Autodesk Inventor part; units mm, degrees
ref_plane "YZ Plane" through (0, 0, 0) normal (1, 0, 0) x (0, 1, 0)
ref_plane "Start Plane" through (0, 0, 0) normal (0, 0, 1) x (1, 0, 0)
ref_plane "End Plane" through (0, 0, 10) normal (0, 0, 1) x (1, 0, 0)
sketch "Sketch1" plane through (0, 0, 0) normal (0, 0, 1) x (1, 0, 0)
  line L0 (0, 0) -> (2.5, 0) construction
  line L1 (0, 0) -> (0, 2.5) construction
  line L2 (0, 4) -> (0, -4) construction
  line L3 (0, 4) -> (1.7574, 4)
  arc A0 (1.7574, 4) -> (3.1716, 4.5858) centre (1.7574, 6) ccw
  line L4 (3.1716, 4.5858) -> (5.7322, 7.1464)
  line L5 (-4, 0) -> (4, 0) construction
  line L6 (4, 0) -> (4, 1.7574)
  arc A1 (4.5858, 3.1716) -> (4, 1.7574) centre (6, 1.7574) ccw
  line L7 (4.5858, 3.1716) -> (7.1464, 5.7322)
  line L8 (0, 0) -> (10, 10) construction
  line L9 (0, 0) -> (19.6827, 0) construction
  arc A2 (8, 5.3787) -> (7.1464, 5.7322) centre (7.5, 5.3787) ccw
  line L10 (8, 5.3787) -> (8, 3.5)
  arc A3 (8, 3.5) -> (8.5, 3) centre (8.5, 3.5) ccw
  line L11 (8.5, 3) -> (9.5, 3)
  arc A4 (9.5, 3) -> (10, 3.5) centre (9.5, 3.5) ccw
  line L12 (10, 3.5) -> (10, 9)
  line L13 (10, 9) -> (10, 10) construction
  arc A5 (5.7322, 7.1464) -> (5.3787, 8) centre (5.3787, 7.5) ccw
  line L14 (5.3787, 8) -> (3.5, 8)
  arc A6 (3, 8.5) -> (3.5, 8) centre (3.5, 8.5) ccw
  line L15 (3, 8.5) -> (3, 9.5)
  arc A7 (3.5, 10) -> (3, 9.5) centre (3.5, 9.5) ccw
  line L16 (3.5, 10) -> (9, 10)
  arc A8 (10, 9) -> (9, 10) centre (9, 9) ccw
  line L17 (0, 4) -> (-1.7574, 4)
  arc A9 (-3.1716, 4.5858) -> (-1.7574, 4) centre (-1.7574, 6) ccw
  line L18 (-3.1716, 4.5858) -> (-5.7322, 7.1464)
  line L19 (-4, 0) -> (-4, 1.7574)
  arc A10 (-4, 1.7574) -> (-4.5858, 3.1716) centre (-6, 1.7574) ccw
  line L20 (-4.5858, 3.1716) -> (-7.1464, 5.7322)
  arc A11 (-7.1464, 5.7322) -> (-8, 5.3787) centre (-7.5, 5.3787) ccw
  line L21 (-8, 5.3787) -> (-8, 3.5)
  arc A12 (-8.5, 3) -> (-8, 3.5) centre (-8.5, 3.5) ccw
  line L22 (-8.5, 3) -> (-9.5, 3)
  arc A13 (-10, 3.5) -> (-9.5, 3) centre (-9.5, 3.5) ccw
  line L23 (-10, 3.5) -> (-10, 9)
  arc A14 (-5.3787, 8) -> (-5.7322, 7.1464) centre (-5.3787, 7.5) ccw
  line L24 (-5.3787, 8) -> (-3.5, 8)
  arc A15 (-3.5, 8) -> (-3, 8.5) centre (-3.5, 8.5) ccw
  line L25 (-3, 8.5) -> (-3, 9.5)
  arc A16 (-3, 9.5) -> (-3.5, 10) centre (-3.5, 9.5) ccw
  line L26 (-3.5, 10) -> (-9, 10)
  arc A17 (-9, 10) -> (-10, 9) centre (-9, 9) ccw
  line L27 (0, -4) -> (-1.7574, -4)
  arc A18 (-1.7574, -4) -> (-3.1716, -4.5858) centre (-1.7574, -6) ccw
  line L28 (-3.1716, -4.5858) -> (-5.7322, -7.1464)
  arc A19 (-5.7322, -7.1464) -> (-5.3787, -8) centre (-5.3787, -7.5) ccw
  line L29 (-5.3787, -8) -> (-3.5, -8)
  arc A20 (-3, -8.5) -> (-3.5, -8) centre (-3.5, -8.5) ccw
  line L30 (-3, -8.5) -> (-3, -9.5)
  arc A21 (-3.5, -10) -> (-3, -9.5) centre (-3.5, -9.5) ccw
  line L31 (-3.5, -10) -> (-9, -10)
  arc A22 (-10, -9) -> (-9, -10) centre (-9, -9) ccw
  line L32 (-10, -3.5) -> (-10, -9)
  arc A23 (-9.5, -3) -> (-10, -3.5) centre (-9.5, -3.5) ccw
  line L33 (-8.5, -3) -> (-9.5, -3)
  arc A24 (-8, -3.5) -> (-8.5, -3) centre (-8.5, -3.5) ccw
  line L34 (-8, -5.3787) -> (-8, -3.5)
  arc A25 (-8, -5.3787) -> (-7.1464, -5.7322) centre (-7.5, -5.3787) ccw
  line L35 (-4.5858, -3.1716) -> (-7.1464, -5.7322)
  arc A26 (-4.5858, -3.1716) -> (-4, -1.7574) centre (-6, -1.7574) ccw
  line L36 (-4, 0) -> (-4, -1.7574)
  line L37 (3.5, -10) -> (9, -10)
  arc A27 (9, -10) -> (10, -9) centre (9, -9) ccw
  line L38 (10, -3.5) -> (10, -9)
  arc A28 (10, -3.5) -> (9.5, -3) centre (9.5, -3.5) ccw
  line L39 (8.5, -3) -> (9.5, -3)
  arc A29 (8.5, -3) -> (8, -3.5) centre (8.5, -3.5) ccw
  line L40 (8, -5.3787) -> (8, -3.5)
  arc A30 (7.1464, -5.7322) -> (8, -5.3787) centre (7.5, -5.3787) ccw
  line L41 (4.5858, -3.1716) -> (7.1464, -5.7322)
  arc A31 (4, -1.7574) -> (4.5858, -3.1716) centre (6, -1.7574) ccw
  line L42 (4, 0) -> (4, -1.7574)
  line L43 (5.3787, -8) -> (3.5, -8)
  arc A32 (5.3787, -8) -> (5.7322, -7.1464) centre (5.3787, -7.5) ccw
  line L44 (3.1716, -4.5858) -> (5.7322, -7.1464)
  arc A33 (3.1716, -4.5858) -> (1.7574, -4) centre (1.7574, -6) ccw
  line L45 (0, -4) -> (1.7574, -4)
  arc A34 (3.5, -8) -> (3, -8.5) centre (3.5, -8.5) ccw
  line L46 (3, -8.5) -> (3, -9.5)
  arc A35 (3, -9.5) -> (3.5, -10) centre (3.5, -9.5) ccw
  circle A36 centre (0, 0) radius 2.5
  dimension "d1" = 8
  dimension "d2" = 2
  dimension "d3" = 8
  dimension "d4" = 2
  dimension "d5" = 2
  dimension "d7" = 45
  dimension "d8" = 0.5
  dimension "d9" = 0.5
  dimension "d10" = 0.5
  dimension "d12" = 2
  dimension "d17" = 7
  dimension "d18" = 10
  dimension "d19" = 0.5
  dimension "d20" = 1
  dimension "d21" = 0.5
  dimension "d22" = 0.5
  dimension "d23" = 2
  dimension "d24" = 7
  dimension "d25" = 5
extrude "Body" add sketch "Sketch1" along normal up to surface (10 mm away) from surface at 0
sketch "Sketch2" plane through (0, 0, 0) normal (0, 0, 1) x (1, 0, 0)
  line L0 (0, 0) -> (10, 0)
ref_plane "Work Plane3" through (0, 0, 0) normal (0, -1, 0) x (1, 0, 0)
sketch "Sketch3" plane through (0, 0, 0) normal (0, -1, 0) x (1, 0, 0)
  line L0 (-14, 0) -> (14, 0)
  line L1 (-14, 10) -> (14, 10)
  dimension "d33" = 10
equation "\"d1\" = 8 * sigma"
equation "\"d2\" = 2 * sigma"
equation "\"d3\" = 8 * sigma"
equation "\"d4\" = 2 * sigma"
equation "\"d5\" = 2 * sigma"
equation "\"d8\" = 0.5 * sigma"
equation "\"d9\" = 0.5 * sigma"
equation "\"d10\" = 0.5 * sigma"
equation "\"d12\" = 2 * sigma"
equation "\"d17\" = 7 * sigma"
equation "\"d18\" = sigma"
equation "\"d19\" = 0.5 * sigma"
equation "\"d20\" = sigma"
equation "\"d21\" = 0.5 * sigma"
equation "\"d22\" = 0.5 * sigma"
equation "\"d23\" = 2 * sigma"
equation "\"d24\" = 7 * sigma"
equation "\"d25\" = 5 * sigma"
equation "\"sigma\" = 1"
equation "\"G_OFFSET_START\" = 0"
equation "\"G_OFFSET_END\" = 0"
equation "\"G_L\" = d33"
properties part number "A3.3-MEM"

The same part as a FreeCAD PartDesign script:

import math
import FreeCAD as App
import Part
import Sketcher
from FreeCAD import Vector

doc = App.newDocument("Part")
params = doc.addObject("Spreadsheet::Sheet", "Params")
for row, (alias, value) in enumerate([
    ("sketch1_diameter", "5 mm"),
    ("sketch1_radius", "2 mm"),
    ("sketch1_radius2", "1 mm"),
    ("sketch1_radius3", "0.5 mm"),
    ("sketch1_width", "1 mm"),
    ("pad1_length", "10 mm"),
], start=1):
    params.set(f"A{row}", alias)
    params.set(f"B{row}", "=" + value)
    params.setAlias(f"B{row}", alias)

body = doc.addObject("PartDesign::Body", "Body")

sketch1 = body.newObject("Sketcher::SketchObject", "Sketch")
sketch1.AttachmentSupport = (doc.getObject("XY_Plane"), [""])
sketch1.MapMode = "FlatFace"
sketch1.addGeometry([
    Part.LineSegment(Vector(1.76, 4, 0), Vector(-1.76, 4, 0)),
    Part.ArcOfCircle(Part.Circle(Vector(-1.76, 6, 0), Vector(0, 0, 1), 2), math.radians(-135), math.radians(-90)),
    Part.LineSegment(Vector(-3.17, 4.59, 0), Vector(-5.73, 7.15, 0)),
    Part.ArcOfCircle(Part.Circle(Vector(-5.38, 7.5, 0), Vector(0, 0, 1), 0.5), math.radians(90), math.radians(225)),
    Part.LineSegment(Vector(-5.38, 8, 0), Vector(-3.5, 8, 0)),
    Part.ArcOfCircle(Part.Circle(Vector(-3.5, 8.5, 0), Vector(0, 0, 1), 0.5), math.radians(-90), math.radians(0)),
    Part.LineSegment(Vector(-3, 8.5, 0), Vector(-3, 9.5, 0)),
    Part.ArcOfCircle(Part.Circle(Vector(-3.5, 9.5, 0), Vector(0, 0, 1), 0.5), math.radians(0), math.radians(90)),
    Part.LineSegment(Vector(-3.5, 10, 0), Vector(-9, 10, 0)),
    Part.ArcOfCircle(Part.Circle(Vector(-9, 9, 0), Vector(0, 0, 1), 1), math.radians(90), math.radians(180)),
    Part.LineSegment(Vector(-10, 9, 0), Vector(-10, 3.5, 0)),
    Part.ArcOfCircle(Part.Circle(Vector(-9.5, 3.5, 0), Vector(0, 0, 1), 0.5), math.radians(180), math.radians(270)),
    Part.LineSegment(Vector(-9.5, 3, 0), Vector(-8.5, 3, 0)),
    Part.ArcOfCircle(Part.Circle(Vector(-8.5, 3.5, 0), Vector(0, 0, 1), 0.5), math.radians(-90), math.radians(0)),
    Part.LineSegment(Vector(-8, 3.5, 0), Vector(-8, 5.38, 0)),
    Part.ArcOfCircle(Part.Circle(Vector(-7.5, 5.38, 0), Vector(0, 0, 1), 0.5), math.radians(45), math.radians(180)),
    Part.LineSegment(Vector(-7.15, 5.73, 0), Vector(-4.59, 3.17, 0)),
    Part.ArcOfCircle(Part.Circle(Vector(-6, 1.76, 0), Vector(0, 0, 1), 2), math.radians(0), math.radians(45)),
    Part.LineSegment(Vector(-4, 1.76, 0), Vector(-4, -1.76, 0)),
    Part.ArcOfCircle(Part.Circle(Vector(-6, -1.76, 0), Vector(0, 0, 1), 2), math.radians(-45), math.radians(0)),
    Part.LineSegment(Vector(-4.59, -3.17, 0), Vector(-7.15, -5.73, 0)),
    Part.ArcOfCircle(Part.Circle(Vector(-7.5, -5.38, 0), Vector(0, 0, 1), 0.5), math.radians(180), math.radians(315)),
    Part.LineSegment(Vector(-8, -5.38, 0), Vector(-8, -3.5, 0)),
    Part.ArcOfCircle(Part.Circle(Vector(-8.5, -3.5, 0), Vector(0, 0, 1), 0.5), math.radians(0), math.radians(90)),
    Part.LineSegment(Vector(-8.5, -3, 0), Vector(-9.5, -3, 0)),
    Part.ArcOfCircle(Part.Circle(Vector(-9.5, -3.5, 0), Vector(0, 0, 1), 0.5), math.radians(90), math.radians(180)),
    Part.LineSegment(Vector(-10, -3.5, 0), Vector(-10, -9, 0)),
    Part.ArcOfCircle(Part.Circle(Vector(-9, -9, 0), Vector(0, 0, 1), 1), math.radians(180), math.radians(270)),
    Part.LineSegment(Vector(-9, -10, 0), Vector(-3.5, -10, 0)),
    Part.ArcOfCircle(Part.Circle(Vector(-3.5, -9.5, 0), Vector(0, 0, 1), 0.5), math.radians(-90), math.radians(0)),
    Part.LineSegment(Vector(-3, -9.5, 0), Vector(-3, -8.5, 0)),
    Part.ArcOfCircle(Part.Circle(Vector(-3.5, -8.5, 0), Vector(0, 0, 1), 0.5), math.radians(0), math.radians(90)),
    Part.LineSegment(Vector(-3.5, -8, 0), Vector(-5.38, -8, 0)),
    Part.ArcOfCircle(Part.Circle(Vector(-5.38, -7.5, 0), Vector(0, 0, 1), 0.5), math.radians(135), math.radians(270)),
    Part.LineSegment(Vector(-5.73, -7.15, 0), Vector(-3.17, -4.59, 0)),
    Part.ArcOfCircle(Part.Circle(Vector(-1.76, -6, 0), Vector(0, 0, 1), 2), math.radians(90), math.radians(135)),
    Part.LineSegment(Vector(-1.76, -4, 0), Vector(1.76, -4, 0)),
    Part.ArcOfCircle(Part.Circle(Vector(1.76, -6, 0), Vector(0, 0, 1), 2), math.radians(45), math.radians(90)),
    Part.LineSegment(Vector(3.17, -4.59, 0), Vector(5.73, -7.15, 0)),
    Part.ArcOfCircle(Part.Circle(Vector(5.38, -7.5, 0), Vector(0, 0, 1), 0.5), math.radians(-90), math.radians(45)),
    Part.LineSegment(Vector(5.38, -8, 0), Vector(3.5, -8, 0)),
    Part.ArcOfCircle(Part.Circle(Vector(3.5, -8.5, 0), Vector(0, 0, 1), 0.5), math.radians(90), math.radians(180)),
    Part.LineSegment(Vector(3, -8.5, 0), Vector(3, -9.5, 0)),
    Part.ArcOfCircle(Part.Circle(Vector(3.5, -9.5, 0), Vector(0, 0, 1), 0.5), math.radians(180), math.radians(270)),
    Part.LineSegment(Vector(3.5, -10, 0), Vector(9, -10, 0)),
    Part.ArcOfCircle(Part.Circle(Vector(9, -9, 0), Vector(0, 0, 1), 1), math.radians(-90), math.radians(0)),
    Part.LineSegment(Vector(10, -9, 0), Vector(10, -3.5, 0)),
    Part.ArcOfCircle(Part.Circle(Vector(9.5, -3.5, 0), Vector(0, 0, 1), 0.5), math.radians(0), math.radians(90)),
    Part.LineSegment(Vector(9.5, -3, 0), Vector(8.5, -3, 0)),
    Part.ArcOfCircle(Part.Circle(Vector(8.5, -3.5, 0), Vector(0, 0, 1), 0.5), math.radians(90), math.radians(180)),
    Part.LineSegment(Vector(8, -3.5, 0), Vector(8, -5.38, 0)),
    Part.ArcOfCircle(Part.Circle(Vector(7.5, -5.38, 0), Vector(0, 0, 1), 0.5), math.radians(-135), math.radians(0)),
    Part.LineSegment(Vector(7.15, -5.73, 0), Vector(4.59, -3.17, 0)),
    Part.ArcOfCircle(Part.Circle(Vector(6, -1.76, 0), Vector(0, 0, 1), 2), math.radians(180), math.radians(225)),
    Part.LineSegment(Vector(4, -1.76, 0), Vector(4, 1.76, 0)),
    Part.ArcOfCircle(Part.Circle(Vector(6, 1.76, 0), Vector(0, 0, 1), 2), math.radians(135), math.radians(180)),
    Part.LineSegment(Vector(4.59, 3.17, 0), Vector(7.15, 5.73, 0)),
    Part.ArcOfCircle(Part.Circle(Vector(7.5, 5.38, 0), Vector(0, 0, 1), 0.5), math.radians(0), math.radians(135)),
    Part.LineSegment(Vector(8, 5.38, 0), Vector(8, 3.5, 0)),
    Part.ArcOfCircle(Part.Circle(Vector(8.5, 3.5, 0), Vector(0, 0, 1), 0.5), math.radians(180), math.radians(270)),
    Part.LineSegment(Vector(8.5, 3, 0), Vector(9.5, 3, 0)),
    Part.ArcOfCircle(Part.Circle(Vector(9.5, 3.5, 0), Vector(0, 0, 1), 0.5), math.radians(-90), math.radians(0)),
    Part.LineSegment(Vector(10, 3.5, 0), Vector(10, 9, 0)),
    Part.ArcOfCircle(Part.Circle(Vector(9, 9, 0), Vector(0, 0, 1), 1), math.radians(0), math.radians(90)),
    Part.LineSegment(Vector(9, 10, 0), Vector(3.5, 10, 0)),
    Part.ArcOfCircle(Part.Circle(Vector(3.5, 9.5, 0), Vector(0, 0, 1), 0.5), math.radians(90), math.radians(180)),
    Part.LineSegment(Vector(3, 9.5, 0), Vector(3, 8.5, 0)),
    Part.ArcOfCircle(Part.Circle(Vector(3.5, 8.5, 0), Vector(0, 0, 1), 0.5), math.radians(180), math.radians(270)),
    Part.LineSegment(Vector(3.5, 8, 0), Vector(5.38, 8, 0)),
    Part.ArcOfCircle(Part.Circle(Vector(5.38, 7.5, 0), Vector(0, 0, 1), 0.5), math.radians(-45), math.radians(90)),
    Part.LineSegment(Vector(5.73, 7.15, 0), Vector(3.17, 4.59, 0)),
    Part.ArcOfCircle(Part.Circle(Vector(1.76, 6, 0), Vector(0, 0, 1), 2), math.radians(-90), math.radians(-45)),
    Part.Circle(Vector(0, 0, 0), Vector(0, 0, 1), 2.5),
], False)
sketch1.addConstraint([
    Sketcher.Constraint("Tangent", 0, 2, 1, 2),
    Sketcher.Constraint("Tangent", 1, 1, 2, 1),
    Sketcher.Constraint("Tangent", 2, 2, 3, 2),
    Sketcher.Constraint("Tangent", 3, 1, 4, 1),
    Sketcher.Constraint("Tangent", 4, 2, 5, 1),
    Sketcher.Constraint("Tangent", 5, 2, 6, 1),
    Sketcher.Constraint("Tangent", 6, 2, 7, 1),
    Sketcher.Constraint("Tangent", 7, 2, 8, 1),
    Sketcher.Constraint("Tangent", 8, 2, 9, 1),
    Sketcher.Constraint("Tangent", 9, 2, 10, 1),
    Sketcher.Constraint("Tangent", 10, 2, 11, 1),
    Sketcher.Constraint("Tangent", 11, 2, 12, 1),
    Sketcher.Constraint("Tangent", 12, 2, 13, 1),
    Sketcher.Constraint("Tangent", 13, 2, 14, 1),
    Sketcher.Constraint("Tangent", 14, 2, 15, 2),
    Sketcher.Constraint("Tangent", 15, 1, 16, 1),
    Sketcher.Constraint("Tangent", 16, 2, 17, 2),
    Sketcher.Constraint("Tangent", 17, 1, 18, 1),
    Sketcher.Constraint("Tangent", 18, 2, 19, 2),
    Sketcher.Constraint("Tangent", 19, 1, 20, 1),
    Sketcher.Constraint("Tangent", 20, 2, 21, 2),
    Sketcher.Constraint("Tangent", 21, 1, 22, 1),
    Sketcher.Constraint("Tangent", 22, 2, 23, 1),
    Sketcher.Constraint("Tangent", 23, 2, 24, 1),
    Sketcher.Constraint("Tangent", 24, 2, 25, 1),
    Sketcher.Constraint("Tangent", 25, 2, 26, 1),
    Sketcher.Constraint("Tangent", 26, 2, 27, 1),
    Sketcher.Constraint("Tangent", 27, 2, 28, 1),
    Sketcher.Constraint("Tangent", 28, 2, 29, 1),
    Sketcher.Constraint("Tangent", 29, 2, 30, 1),
    Sketcher.Constraint("Tangent", 30, 2, 31, 1),
    Sketcher.Constraint("Tangent", 31, 2, 32, 1),
    Sketcher.Constraint("Tangent", 32, 2, 33, 2),
    Sketcher.Constraint("Tangent", 33, 1, 34, 1),
    Sketcher.Constraint("Tangent", 34, 2, 35, 2),
    Sketcher.Constraint("Tangent", 35, 1, 36, 1),
    Sketcher.Constraint("Tangent", 36, 2, 37, 2),
    Sketcher.Constraint("Tangent", 37, 1, 38, 1),
    Sketcher.Constraint("Tangent", 38, 2, 39, 2),
    Sketcher.Constraint("Tangent", 39, 1, 40, 1),
    Sketcher.Constraint("Tangent", 40, 2, 41, 1),
    Sketcher.Constraint("Tangent", 41, 2, 42, 1),
    Sketcher.Constraint("Tangent", 42, 2, 43, 1),
    Sketcher.Constraint("Tangent", 43, 2, 44, 1),
    Sketcher.Constraint("Tangent", 44, 2, 45, 1),
    Sketcher.Constraint("Tangent", 45, 2, 46, 1),
    Sketcher.Constraint("Tangent", 46, 2, 47, 1),
    Sketcher.Constraint("Tangent", 47, 2, 48, 1),
    Sketcher.Constraint("Tangent", 48, 2, 49, 1),
    Sketcher.Constraint("Tangent", 49, 2, 50, 1),
    Sketcher.Constraint("Tangent", 50, 2, 51, 2),
    Sketcher.Constraint("Tangent", 51, 1, 52, 1),
    Sketcher.Constraint("Tangent", 52, 2, 53, 2),
    Sketcher.Constraint("Tangent", 53, 1, 54, 1),
    Sketcher.Constraint("Tangent", 54, 2, 55, 2),
    Sketcher.Constraint("Tangent", 55, 1, 56, 1),
    Sketcher.Constraint("Tangent", 56, 2, 57, 2),
    Sketcher.Constraint("Tangent", 57, 1, 58, 1),
    Sketcher.Constraint("Tangent", 58, 2, 59, 1),
    Sketcher.Constraint("Tangent", 59, 2, 60, 1),
    Sketcher.Constraint("Tangent", 60, 2, 61, 1),
    Sketcher.Constraint("Tangent", 61, 2, 62, 1),
    Sketcher.Constraint("Tangent", 62, 2, 63, 1),
    Sketcher.Constraint("Tangent", 63, 2, 64, 1),
    Sketcher.Constraint("Tangent", 64, 2, 65, 1),
    Sketcher.Constraint("Tangent", 65, 2, 66, 1),
    Sketcher.Constraint("Tangent", 66, 2, 67, 1),
    Sketcher.Constraint("Tangent", 67, 2, 68, 1),
    Sketcher.Constraint("Tangent", 68, 2, 69, 2),
    Sketcher.Constraint("Tangent", 69, 1, 70, 1),
    Sketcher.Constraint("Tangent", 70, 2, 71, 2),
    Sketcher.Constraint("Tangent", 71, 1, 0, 1),
    Sketcher.Constraint("Horizontal", 0),
    Sketcher.Constraint("Horizontal", 4),
    Sketcher.Constraint("Vertical", 6),
    Sketcher.Constraint("Horizontal", 8),
    Sketcher.Constraint("Vertical", 10),
    Sketcher.Constraint("Horizontal", 12),
    Sketcher.Constraint("Vertical", 14),
    Sketcher.Constraint("Vertical", 18),
    Sketcher.Constraint("Vertical", 22),
    Sketcher.Constraint("Horizontal", 24),
    Sketcher.Constraint("Vertical", 26),
    Sketcher.Constraint("Horizontal", 28),
    Sketcher.Constraint("Vertical", 30),
    Sketcher.Constraint("Horizontal", 32),
    Sketcher.Constraint("Horizontal", 36),
    Sketcher.Constraint("Horizontal", 40),
    Sketcher.Constraint("Vertical", 42),
    Sketcher.Constraint("Horizontal", 44),
    Sketcher.Constraint("Vertical", 46),
    Sketcher.Constraint("Horizontal", 48),
    Sketcher.Constraint("Vertical", 50),
    Sketcher.Constraint("Vertical", 54),
    Sketcher.Constraint("Vertical", 58),
    Sketcher.Constraint("Horizontal", 60),
    Sketcher.Constraint("Vertical", 62),
    Sketcher.Constraint("Horizontal", 64),
    Sketcher.Constraint("Vertical", 66),
    Sketcher.Constraint("Horizontal", 68),
    Sketcher.Constraint("Coincident", 72, 3, -1, 1),
    Sketcher.Constraint("Equal", 3, 5),
    Sketcher.Constraint("Equal", 5, 7),
    Sketcher.Constraint("Equal", 7, 11),
    Sketcher.Constraint("Equal", 11, 13),
    Sketcher.Constraint("Equal", 13, 15),
    Sketcher.Constraint("Equal", 1, 17),
    Sketcher.Constraint("Equal", 17, 19),
    Sketcher.Constraint("Equal", 15, 21),
    Sketcher.Constraint("Equal", 21, 23),
    Sketcher.Constraint("Equal", 23, 25),
    Sketcher.Constraint("Equal", 9, 27),
    Sketcher.Constraint("Equal", 25, 29),
    Sketcher.Constraint("Equal", 29, 31),
    Sketcher.Constraint("Equal", 31, 33),
    Sketcher.Constraint("Equal", 19, 35),
    Sketcher.Constraint("Equal", 35, 37),
    Sketcher.Constraint("Equal", 33, 39),
    Sketcher.Constraint("Equal", 39, 41),
    Sketcher.Constraint("Equal", 41, 43),
    Sketcher.Constraint("Equal", 27, 45),
    Sketcher.Constraint("Equal", 43, 47),
    Sketcher.Constraint("Equal", 47, 49),
    Sketcher.Constraint("Equal", 49, 51),
    Sketcher.Constraint("Equal", 37, 53),
    Sketcher.Constraint("Equal", 53, 55),
    Sketcher.Constraint("Equal", 51, 57),
    Sketcher.Constraint("Equal", 57, 59),
    Sketcher.Constraint("Equal", 59, 61),
    Sketcher.Constraint("Equal", 45, 63),
    Sketcher.Constraint("Equal", 61, 65),
    Sketcher.Constraint("Equal", 65, 67),
    Sketcher.Constraint("Equal", 67, 69),
    Sketcher.Constraint("Equal", 55, 71),
    Sketcher.Constraint("Symmetric", 1, 3, 37, 3, -1, 1),
    Sketcher.Constraint("Symmetric", 3, 3, 39, 3, -1, 1),
    Sketcher.Constraint("Symmetric", 7, 3, 43, 3, -1, 1),
    Sketcher.Constraint("Symmetric", 11, 3, 47, 3, -1, 1),
    Sketcher.Constraint("Symmetric", 15, 3, 51, 3, -1, 1),
    Sketcher.Constraint("Symmetric", 17, 3, 53, 3, -1, 1),
    Sketcher.Constraint("Symmetric", 21, 3, 57, 3, -1, 1),
    Sketcher.Constraint("Symmetric", 25, 3, 61, 3, -1, 1),
    Sketcher.Constraint("Symmetric", 29, 3, 65, 3, -1, 1),
    Sketcher.Constraint("Symmetric", 33, 3, 69, 3, -1, 1),
    Sketcher.Constraint("Symmetric", 33, 3, 39, 3, -2),
    Sketcher.Constraint("Symmetric", 29, 3, 43, 3, -2),
    Sketcher.Constraint("Symmetric", 25, 3, 47, 3, -2),
    Sketcher.Constraint("Symmetric", 21, 3, 51, 3, -2),
    Sketcher.Constraint("Parallel", 2, 16),
    Sketcher.Constraint("Perpendicular", 16, 20),
    Sketcher.Constraint("Parallel", 20, 34),
    Sketcher.Constraint("Perpendicular", 52, 56),
    Sketcher.Constraint("Parallel", 56, 70),
    Sketcher.Constraint("Horizontal", 19, 3, 53, 3),
    Sketcher.Constraint("Equal", 60, 6),
    Sketcher.Constraint("Equal", 64, 10),
    Sketcher.Constraint("Equal", 68, 14),
    Sketcher.Constraint("Equal", 36, 18),
    Sketcher.Constraint("Equal", 2, 16),
    Sketcher.Constraint("Diameter", 72, 5.0),
    Sketcher.Constraint("Radius", 1, 2.0),
    Sketcher.Constraint("Radius", 9, 1.0),
    Sketcher.Constraint("Radius", 3, 0.5),
    Sketcher.Constraint("DistanceX", 12, 1, 12, 2, 1.0),
    Sketcher.Constraint("DistanceY", -1, 1, 3, 1, 8.0),
    Sketcher.Constraint("DistanceX", 8, 2, 8, 1, 5.5),
    Sketcher.Constraint("DistanceY", -1, 1, 1, 3, 6.0),
    Sketcher.Constraint("DistanceX", 0, 2, 0, 1, 3.5148),
])
sketch1.setExpression("Constraints[159]", "Params.sketch1_diameter")
sketch1.setExpression("Constraints[160]", "Params.sketch1_radius")
sketch1.setExpression("Constraints[161]", "Params.sketch1_radius2")
sketch1.setExpression("Constraints[162]", "Params.sketch1_radius3")
sketch1.setExpression("Constraints[163]", "Params.sketch1_width")
pad1 = body.newObject("PartDesign::Pad", "Pad")
pad1.Profile = sketch1
pad1.setExpression("Length", "Params.pad1_length")

doc.recompute()
